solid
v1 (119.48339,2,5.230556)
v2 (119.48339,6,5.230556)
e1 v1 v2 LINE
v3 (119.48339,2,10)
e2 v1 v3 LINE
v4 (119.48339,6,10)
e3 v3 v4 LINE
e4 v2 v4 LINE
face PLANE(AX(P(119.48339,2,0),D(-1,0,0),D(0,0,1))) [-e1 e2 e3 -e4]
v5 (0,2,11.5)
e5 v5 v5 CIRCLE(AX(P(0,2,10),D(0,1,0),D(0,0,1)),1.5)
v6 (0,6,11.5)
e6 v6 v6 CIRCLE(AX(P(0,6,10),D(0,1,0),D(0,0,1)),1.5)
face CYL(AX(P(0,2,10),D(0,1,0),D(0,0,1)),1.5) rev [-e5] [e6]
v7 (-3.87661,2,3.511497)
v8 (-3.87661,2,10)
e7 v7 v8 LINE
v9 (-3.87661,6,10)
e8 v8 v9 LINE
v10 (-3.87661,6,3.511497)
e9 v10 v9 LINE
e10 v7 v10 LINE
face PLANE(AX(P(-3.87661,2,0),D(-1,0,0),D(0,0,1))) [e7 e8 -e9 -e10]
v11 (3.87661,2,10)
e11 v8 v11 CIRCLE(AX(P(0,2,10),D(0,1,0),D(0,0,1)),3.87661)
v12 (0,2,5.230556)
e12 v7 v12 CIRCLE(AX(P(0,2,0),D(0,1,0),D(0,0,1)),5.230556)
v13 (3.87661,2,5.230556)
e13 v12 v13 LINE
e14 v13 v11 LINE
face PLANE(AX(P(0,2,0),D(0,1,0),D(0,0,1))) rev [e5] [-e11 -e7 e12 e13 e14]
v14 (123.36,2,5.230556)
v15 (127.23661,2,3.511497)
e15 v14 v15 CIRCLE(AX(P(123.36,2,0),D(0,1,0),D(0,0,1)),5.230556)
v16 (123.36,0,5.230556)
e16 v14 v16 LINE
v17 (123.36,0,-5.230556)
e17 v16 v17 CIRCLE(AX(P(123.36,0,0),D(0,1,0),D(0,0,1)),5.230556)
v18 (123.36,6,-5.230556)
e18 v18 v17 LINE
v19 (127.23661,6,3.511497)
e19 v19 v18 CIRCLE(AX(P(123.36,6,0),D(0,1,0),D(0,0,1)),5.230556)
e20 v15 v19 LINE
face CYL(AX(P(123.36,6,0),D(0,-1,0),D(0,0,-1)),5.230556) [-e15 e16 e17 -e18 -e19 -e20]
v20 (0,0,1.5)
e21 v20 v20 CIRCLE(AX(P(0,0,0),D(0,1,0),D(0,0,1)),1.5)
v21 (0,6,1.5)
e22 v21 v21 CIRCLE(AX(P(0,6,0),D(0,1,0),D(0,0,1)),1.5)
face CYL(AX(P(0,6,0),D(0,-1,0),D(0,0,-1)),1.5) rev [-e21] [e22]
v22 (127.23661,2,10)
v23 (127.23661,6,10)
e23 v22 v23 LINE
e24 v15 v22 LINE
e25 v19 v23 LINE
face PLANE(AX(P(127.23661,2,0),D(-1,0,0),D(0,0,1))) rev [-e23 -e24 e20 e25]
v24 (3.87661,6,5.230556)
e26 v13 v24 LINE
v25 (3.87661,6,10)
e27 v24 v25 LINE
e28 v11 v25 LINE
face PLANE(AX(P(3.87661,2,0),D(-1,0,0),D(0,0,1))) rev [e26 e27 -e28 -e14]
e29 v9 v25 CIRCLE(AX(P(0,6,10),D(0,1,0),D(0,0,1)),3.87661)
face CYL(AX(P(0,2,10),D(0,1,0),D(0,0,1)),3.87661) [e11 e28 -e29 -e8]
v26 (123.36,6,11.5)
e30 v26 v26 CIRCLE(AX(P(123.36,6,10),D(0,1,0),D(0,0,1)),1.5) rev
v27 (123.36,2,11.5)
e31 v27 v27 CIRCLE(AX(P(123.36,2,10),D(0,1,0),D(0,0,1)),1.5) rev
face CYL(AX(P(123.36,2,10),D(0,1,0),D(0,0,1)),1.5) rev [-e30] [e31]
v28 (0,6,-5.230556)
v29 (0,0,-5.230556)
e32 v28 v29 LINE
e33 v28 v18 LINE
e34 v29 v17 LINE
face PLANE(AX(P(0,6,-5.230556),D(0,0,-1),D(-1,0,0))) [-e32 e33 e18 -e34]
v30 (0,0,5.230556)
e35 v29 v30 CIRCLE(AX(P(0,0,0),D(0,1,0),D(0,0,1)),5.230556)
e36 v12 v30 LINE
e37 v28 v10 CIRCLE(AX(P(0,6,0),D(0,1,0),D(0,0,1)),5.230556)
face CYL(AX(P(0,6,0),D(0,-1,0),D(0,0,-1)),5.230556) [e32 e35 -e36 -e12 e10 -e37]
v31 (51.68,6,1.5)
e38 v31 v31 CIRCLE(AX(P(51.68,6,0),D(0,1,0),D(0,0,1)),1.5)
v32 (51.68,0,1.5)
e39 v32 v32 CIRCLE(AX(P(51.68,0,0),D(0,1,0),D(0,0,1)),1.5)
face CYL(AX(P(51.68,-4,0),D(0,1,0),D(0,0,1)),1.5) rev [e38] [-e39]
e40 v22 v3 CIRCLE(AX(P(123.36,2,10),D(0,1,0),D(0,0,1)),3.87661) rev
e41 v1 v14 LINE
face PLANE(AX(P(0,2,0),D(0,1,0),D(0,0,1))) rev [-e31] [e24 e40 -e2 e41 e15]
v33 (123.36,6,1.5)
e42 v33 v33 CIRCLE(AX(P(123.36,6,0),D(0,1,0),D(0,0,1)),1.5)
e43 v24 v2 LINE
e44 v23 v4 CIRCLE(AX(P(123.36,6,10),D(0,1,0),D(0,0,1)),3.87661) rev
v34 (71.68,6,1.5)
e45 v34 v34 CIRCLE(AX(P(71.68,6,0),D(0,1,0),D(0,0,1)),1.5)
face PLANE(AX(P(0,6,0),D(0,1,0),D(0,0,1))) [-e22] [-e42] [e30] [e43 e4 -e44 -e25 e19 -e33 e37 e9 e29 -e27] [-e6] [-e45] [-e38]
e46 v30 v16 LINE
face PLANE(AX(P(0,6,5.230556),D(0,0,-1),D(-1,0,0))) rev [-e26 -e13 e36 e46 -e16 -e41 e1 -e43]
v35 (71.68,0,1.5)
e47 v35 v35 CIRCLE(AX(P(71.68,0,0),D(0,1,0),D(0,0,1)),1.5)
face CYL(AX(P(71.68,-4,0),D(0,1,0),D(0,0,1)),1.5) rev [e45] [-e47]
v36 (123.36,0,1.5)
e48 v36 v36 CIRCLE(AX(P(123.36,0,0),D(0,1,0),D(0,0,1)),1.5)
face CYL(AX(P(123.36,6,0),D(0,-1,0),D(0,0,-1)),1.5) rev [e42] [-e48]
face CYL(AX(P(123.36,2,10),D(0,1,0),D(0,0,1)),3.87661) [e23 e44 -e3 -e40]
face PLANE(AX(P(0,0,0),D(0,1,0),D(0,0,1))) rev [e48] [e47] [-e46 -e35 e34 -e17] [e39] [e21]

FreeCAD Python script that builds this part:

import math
import FreeCAD as App
import Part
import Sketcher
Q = App.Units.Quantity

doc = App.newDocument("Part")
params = doc.addObject("Spreadsheet::Sheet", "Params")
for row, (alias, value) in enumerate([
    ("sketch1_diameter", "3 mm"),
    ("sketch1_width", "123.36 mm"),
    ("pad1_length", "6 mm"),
    ("sketch2_diameter", "3 mm"),
    ("sketch2_height", "10 mm"),
    ("pad2_length", "4 mm"),
    ("sketch3_diameter", "3 mm"),
    ("pocket1_length", "10 mm"),
], start=1):
    params.set(f"A{row}", alias)
    params.set(f"B{row}", "=" + value)
    params.setAlias(f"B{row}", alias)

body = doc.addObject("PartDesign::Body", "Body")

# Sketch on XZ plane
sketch1 = body.newObject("Sketcher::SketchObject", "Sketch")
sketch1.AttachmentSupport = (doc.getObject("XZ_Plane"), [""])
sketch1.MapMode = "FlatFace"
sketch1.addGeometry([
    Part.LineSegment(App.Vector(123.36, -5.230556, 0), App.Vector(0, -5.230556, 0)),  # 0
    Part.ArcOfCircle(Part.Circle(App.Vector(0, 0, 0), App.Vector(0, 0, 1), 5.230556), math.radians(90), math.radians(270)),  # 1
    Part.LineSegment(App.Vector(0, 5.230556, 0), App.Vector(123.36, 5.230556, 0)),  # 2
    Part.ArcOfCircle(Part.Circle(App.Vector(123.36, 0, 0), App.Vector(0, 0, 1), 5.230556), math.radians(-90), math.radians(90)),  # 3
    Part.Circle(App.Vector(123.36, 0, 0), App.Vector(0, 0, 1), 1.5),  # 4
    Part.Circle(App.Vector(0, 0, 0), App.Vector(0, 0, 1), 1.5),  # 5
], False)
sketch1.addConstraint([
    Sketcher.Constraint("Tangent", 0, 2, 1, 2),
    Sketcher.Constraint("Tangent", 1, 1, 2, 1),
    Sketcher.Constraint("Tangent", 2, 2, 3, 2),
    Sketcher.Constraint("Tangent", 3, 1, 0, 1),
    Sketcher.Constraint("Horizontal", 0),
    Sketcher.Constraint("Horizontal", 2),
    Sketcher.Constraint("Coincident", 1, 3, -1, 1),
    Sketcher.Constraint("Coincident", 5, 3, -1, 1),
    Sketcher.Constraint("Coincident", 4, 3, 3, 3),
    Sketcher.Constraint("Equal", 4, 5),
    Sketcher.Constraint("Diameter", 4, Q("3 mm")),
    Sketcher.Constraint("DistanceX", 0, 2, 0, 1, Q("123.36 mm")),
    Sketcher.Constraint("Radius", 1, Q("5.230556 mm")),
])
sketch1.setExpression("Constraints[10]", "Params.sketch1_diameter")
sketch1.setExpression("Constraints[11]", "Params.sketch1_width")
pad1 = body.newObject("PartDesign::Pad", "Pad")
pad1.Profile = sketch1
pad1.setExpression("Length", "Params.pad1_length")
pad1.Reversed = True

# Sketch on XZ plane
sketch2 = body.newObject("Sketcher::SketchObject", "Sketch001")
sketch2.AttachmentSupport = (doc.getObject("XZ_Plane"), [""])
sketch2.MapMode = "FlatFace"
sketch2.AttachmentOffset = App.Placement(App.Vector(0, 0, -6), App.Rotation())
sketch2.addGeometry([
    Part.LineSegment(App.Vector(3.87661, 10, 0), App.Vector(3.87661, 0, 0)),  # 0
    Part.ArcOfCircle(Part.Circle(App.Vector(0, 0, 0), App.Vector(0, 0, 1), 3.87661), math.radians(180), math.radians(360)),  # 1
    Part.LineSegment(App.Vector(-3.87661, 0, 0), App.Vector(-3.87661, 10, 0)),  # 2
    Part.ArcOfCircle(Part.Circle(App.Vector(0, 10, 0), App.Vector(0, 0, 1), 3.87661), math.radians(0), math.radians(180)),  # 3
    Part.Circle(App.Vector(0, 10, 0), App.Vector(0, 0, 1), 1.5),  # 4
    Part.Circle(App.Vector(0, 0, 0), App.Vector(0, 0, 1), 1.5),  # 5
    Part.LineSegment(App.Vector(119.48339, 0, 0), App.Vector(119.48339, 10, 0)),  # 6
    Part.ArcOfCircle(Part.Circle(App.Vector(123.36, 10, 0), App.Vector(0, 0, 1), 3.87661), math.radians(0), math.radians(180)),  # 7
    Part.LineSegment(App.Vector(127.23661, 10, 0), App.Vector(127.23661, 0, 0)),  # 8
    Part.ArcOfCircle(Part.Circle(App.Vector(123.36, 0, 0), App.Vector(0, 0, 1), 3.87661), math.radians(180), math.radians(360)),  # 9
    Part.Circle(App.Vector(123.36, 10, 0), App.Vector(0, 0, 1), 1.5),  # 10
    Part.Circle(App.Vector(123.36, 0, 0), App.Vector(0, 0, 1), 1.5),  # 11
], False)
sketch2.addConstraint([
    Sketcher.Constraint("Tangent", 0, 2, 1, 2),
    Sketcher.Constraint("Tangent", 1, 1, 2, 1),
    Sketcher.Constraint("Tangent", 2, 2, 3, 2),
    Sketcher.Constraint("Tangent", 3, 1, 0, 1),
    Sketcher.Constraint("Tangent", 6, 2, 7, 2),
    Sketcher.Constraint("Tangent", 7, 1, 8, 1),
    Sketcher.Constraint("Tangent", 8, 2, 9, 2),
    Sketcher.Constraint("Tangent", 9, 1, 6, 1),
    Sketcher.Constraint("Vertical", 0),
    Sketcher.Constraint("Vertical", 2),
    Sketcher.Constraint("Vertical", 6),
    Sketcher.Constraint("Vertical", 8),
    Sketcher.Constraint("Coincident", 1, 3, -1, 1),
    Sketcher.Constraint("Coincident", 5, 3, -1, 1),
    Sketcher.Constraint("Coincident", 4, 3, 3, 3),
    Sketcher.Constraint("Coincident", 10, 3, 7, 3),
    Sketcher.Constraint("Coincident", 11, 3, 9, 3),
    Sketcher.Constraint("Equal", 4, 5),
    Sketcher.Constraint("Equal", 3, 7),
    Sketcher.Constraint("Equal", 5, 10),
    Sketcher.Constraint("Equal", 10, 11),
    Sketcher.Constraint("PointOnObject", 9, 3, -1),
    Sketcher.Constraint("Horizontal", 4, 3, 7, 3),
    Sketcher.Constraint("Diameter", 4, Q("3 mm")),
    Sketcher.Constraint("DistanceY", 0, 2, 0, 1, Q("10 mm")),
    Sketcher.Constraint("DistanceX", -1, 1, 7, 3, Q("123.36 mm")),
    Sketcher.Constraint("Radius", 1, Q("3.87661 mm")),
])
sketch2.setExpression("Constraints[23]", "Params.sketch2_diameter")
sketch2.setExpression("Constraints[24]", "Params.sketch2_height")
pad2 = body.newObject("PartDesign::Pad", "Pad001")
pad2.Profile = sketch2
pad2.setExpression("Length", "Params.pad2_length")

# Sketch on XZ plane
sketch3 = body.newObject("Sketcher::SketchObject", "Sketch002")
sketch3.AttachmentSupport = (doc.getObject("XZ_Plane"), [""])
sketch3.MapMode = "FlatFace"
sketch3.AttachmentOffset = App.Placement(App.Vector(0, 0, -6), App.Rotation())
sketch3.addGeometry([
    Part.Circle(App.Vector(51.68, 0, 0), App.Vector(0, 0, 1), 1.5),
    Part.Circle(App.Vector(71.68, 0, 0), App.Vector(0, 0, 1), 1.5),
], False)
sketch3.addConstraint([
    Sketcher.Constraint("Equal", 0, 1),
    Sketcher.Constraint("PointOnObject", 0, 3, -1),
    Sketcher.Constraint("PointOnObject", 1, 3, -1),
    Sketcher.Constraint("Diameter", 0, Q("3 mm")),
    Sketcher.Constraint("DistanceX", 0, 3, 1, 3, Q("20 mm")),
    Sketcher.Constraint("DistanceX", -1, 1, 0, 3, Q("51.68 mm")),
])
sketch3.setExpression("Constraints[3]", "Params.sketch3_diameter")
pocket1 = body.newObject("PartDesign::Pocket", "Pocket")
pocket1.Profile = sketch3
pocket1.setExpression("Length", "Params.pocket1_length")
pocket1.Reversed = True

doc.recompute()
